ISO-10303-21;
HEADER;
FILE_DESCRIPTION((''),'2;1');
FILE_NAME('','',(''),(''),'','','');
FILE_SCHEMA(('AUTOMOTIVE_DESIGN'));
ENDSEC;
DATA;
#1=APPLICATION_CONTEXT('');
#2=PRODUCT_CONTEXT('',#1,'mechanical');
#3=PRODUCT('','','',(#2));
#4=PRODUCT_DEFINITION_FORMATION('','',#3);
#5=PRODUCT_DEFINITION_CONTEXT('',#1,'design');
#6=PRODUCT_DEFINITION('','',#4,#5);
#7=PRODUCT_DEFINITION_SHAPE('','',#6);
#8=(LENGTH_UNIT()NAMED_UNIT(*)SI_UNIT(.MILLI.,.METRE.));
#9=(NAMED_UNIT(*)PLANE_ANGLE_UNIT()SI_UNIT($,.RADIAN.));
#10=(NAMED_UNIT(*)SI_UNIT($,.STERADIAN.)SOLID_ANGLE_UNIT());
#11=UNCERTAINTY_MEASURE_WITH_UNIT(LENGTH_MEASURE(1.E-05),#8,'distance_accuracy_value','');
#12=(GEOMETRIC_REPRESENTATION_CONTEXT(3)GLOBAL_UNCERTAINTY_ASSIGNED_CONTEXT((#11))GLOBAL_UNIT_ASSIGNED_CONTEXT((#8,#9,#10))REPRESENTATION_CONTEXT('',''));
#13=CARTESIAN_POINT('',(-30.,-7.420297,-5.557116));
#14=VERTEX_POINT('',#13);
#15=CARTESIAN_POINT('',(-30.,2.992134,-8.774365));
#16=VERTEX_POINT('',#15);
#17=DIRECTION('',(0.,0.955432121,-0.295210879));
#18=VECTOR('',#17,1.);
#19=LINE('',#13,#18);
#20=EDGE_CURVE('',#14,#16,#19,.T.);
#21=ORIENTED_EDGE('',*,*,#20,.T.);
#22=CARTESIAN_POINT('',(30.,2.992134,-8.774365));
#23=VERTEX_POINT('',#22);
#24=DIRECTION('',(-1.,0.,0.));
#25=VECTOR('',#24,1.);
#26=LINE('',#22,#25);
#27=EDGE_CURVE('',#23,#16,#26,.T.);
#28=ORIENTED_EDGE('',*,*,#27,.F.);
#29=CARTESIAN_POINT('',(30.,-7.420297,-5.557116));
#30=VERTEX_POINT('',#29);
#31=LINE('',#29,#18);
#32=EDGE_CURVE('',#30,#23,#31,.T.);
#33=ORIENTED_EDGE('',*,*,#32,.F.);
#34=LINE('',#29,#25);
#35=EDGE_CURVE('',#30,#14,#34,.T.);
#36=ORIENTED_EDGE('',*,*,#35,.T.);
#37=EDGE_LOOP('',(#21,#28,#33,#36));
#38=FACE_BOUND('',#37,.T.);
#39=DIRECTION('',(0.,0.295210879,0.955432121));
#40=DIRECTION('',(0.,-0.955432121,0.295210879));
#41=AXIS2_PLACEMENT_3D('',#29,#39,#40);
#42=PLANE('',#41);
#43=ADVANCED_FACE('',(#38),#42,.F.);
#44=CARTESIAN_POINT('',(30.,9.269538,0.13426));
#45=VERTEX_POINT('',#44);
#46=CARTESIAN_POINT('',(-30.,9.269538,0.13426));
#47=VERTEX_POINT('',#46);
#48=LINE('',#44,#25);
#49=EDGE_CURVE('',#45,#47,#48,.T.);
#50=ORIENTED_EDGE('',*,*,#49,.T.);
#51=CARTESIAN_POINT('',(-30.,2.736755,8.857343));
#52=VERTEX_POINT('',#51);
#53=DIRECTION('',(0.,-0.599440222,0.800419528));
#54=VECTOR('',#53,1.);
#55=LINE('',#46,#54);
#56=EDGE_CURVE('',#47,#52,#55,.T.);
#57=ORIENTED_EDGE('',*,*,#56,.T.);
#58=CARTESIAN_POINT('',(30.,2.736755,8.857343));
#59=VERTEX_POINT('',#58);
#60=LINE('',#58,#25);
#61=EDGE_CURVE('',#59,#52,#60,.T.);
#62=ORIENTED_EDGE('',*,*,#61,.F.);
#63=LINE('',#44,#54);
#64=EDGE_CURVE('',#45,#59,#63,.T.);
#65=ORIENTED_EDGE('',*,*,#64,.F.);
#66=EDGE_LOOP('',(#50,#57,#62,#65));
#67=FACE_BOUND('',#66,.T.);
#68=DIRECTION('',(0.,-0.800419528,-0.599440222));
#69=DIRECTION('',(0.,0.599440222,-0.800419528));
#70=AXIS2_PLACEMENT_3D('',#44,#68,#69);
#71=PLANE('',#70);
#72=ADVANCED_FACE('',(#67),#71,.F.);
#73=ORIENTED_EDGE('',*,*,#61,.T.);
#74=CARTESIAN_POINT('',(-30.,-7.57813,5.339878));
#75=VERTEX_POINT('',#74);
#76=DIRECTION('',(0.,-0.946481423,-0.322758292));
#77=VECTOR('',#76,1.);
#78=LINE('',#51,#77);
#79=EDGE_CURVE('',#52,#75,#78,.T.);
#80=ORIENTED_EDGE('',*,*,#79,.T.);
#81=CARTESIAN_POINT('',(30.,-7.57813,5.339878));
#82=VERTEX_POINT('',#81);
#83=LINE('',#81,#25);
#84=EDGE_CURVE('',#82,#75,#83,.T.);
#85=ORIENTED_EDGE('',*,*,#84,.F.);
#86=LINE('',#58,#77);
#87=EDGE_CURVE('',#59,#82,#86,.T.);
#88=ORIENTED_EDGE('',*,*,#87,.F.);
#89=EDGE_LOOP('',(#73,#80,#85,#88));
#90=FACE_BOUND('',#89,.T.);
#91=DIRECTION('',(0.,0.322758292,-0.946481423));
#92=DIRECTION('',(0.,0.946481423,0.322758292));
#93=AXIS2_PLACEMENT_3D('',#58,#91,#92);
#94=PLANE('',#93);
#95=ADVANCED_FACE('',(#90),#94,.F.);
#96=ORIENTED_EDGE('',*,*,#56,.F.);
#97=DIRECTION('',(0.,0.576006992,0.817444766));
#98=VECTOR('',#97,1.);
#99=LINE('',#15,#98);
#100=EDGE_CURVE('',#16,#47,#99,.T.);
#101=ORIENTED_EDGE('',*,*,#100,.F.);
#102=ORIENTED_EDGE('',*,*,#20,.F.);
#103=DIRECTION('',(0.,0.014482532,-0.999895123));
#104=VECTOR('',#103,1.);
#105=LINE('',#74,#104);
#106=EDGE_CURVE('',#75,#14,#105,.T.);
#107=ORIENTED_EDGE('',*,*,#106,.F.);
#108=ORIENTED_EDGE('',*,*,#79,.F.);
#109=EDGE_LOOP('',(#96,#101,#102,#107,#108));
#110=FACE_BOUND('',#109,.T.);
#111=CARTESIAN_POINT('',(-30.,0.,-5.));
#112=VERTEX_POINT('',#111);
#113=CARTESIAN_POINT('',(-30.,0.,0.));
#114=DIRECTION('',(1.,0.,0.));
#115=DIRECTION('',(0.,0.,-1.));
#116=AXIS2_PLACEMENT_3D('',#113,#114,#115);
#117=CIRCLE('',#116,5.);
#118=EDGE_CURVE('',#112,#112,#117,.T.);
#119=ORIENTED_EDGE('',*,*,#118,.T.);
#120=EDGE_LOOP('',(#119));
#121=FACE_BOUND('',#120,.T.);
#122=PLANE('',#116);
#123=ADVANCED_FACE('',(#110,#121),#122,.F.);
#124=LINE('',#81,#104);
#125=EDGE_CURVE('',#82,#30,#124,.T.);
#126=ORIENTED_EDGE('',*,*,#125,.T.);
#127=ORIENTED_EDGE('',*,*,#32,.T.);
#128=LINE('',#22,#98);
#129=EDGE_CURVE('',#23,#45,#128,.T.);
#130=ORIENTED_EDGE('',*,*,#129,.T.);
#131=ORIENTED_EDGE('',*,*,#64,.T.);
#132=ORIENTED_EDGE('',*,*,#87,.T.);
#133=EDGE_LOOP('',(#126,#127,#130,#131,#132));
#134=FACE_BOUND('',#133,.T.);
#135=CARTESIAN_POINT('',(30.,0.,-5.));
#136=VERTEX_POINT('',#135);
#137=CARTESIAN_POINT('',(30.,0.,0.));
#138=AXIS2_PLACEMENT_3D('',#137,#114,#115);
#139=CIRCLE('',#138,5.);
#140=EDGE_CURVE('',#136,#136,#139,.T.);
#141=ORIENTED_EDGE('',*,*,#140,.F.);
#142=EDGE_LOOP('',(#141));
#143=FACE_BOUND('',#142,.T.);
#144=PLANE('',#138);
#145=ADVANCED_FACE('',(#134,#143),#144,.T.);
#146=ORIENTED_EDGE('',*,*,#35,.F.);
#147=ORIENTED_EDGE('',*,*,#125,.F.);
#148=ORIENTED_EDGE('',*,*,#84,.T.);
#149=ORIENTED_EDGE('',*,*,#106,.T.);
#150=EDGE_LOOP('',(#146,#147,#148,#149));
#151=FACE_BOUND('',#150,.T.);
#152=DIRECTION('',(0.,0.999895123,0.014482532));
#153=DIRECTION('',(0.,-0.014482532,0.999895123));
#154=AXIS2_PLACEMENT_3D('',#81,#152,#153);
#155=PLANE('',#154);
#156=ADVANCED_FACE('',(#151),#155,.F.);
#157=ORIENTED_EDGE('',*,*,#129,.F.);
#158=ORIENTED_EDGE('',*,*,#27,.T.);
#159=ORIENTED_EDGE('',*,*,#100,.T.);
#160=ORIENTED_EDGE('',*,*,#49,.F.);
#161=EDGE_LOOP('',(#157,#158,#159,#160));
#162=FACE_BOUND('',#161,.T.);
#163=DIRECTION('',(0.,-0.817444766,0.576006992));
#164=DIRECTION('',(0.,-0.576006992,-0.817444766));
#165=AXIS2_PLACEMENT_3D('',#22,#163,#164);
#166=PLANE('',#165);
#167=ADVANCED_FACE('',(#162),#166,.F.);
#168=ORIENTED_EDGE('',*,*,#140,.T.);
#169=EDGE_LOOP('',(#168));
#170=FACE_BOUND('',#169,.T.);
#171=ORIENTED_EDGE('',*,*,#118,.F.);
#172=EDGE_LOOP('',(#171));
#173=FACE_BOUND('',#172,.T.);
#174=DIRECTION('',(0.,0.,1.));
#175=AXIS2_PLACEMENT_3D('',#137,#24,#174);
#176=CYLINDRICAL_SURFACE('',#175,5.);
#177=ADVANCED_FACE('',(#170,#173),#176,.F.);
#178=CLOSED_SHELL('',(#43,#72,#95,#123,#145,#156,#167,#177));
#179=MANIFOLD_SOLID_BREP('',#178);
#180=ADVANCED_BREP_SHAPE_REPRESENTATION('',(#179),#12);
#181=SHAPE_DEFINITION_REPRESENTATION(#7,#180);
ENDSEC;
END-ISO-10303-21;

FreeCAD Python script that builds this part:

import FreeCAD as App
import Part
import Sketcher
from FreeCAD import Vector


def add_polygon(sketch, points):
    """Adds a closed chain of lines whose ends are joined by coincident constraints."""
    first, n = sketch.GeometryCount, len(points)
    for a, b in zip(points, points[1:] + points[:1]):
        sketch.addGeometry(Part.LineSegment(App.Vector(*a, 0), App.Vector(*b, 0)), False)
    for i in range(n):
        sketch.addConstraint(Sketcher.Constraint("Coincident", first + i, 2, first + (i + 1) % n, 1))

doc = App.newDocument("Part")
params = doc.addObject("Spreadsheet::Sheet", "Params")
for row, (alias, value) in enumerate([
    ("sketch1_diameter", "10 mm"),
    ("pad1_length", "60 mm"),
], start=1):
    params.set(f"A{row}", alias)
    params.set(f"B{row}", "=" + value)
    params.setAlias(f"B{row}", alias)

body = doc.addObject("PartDesign::Body", "Body")

# Sketch on YZ plane
sketch1 = body.newObject("Sketcher::SketchObject", "Sketch")
sketch1.AttachmentSupport = (doc.getObject("YZ_Plane"), [""])
sketch1.MapMode = "FlatFace"
add_polygon(sketch1, [(-7.420297, -5.557116), (2.992134, -8.774365), (9.269538, 0.13426), (2.736755, 8.857343), (-7.57813, 5.339878)])  # lines 0-4
sketch1.addGeometry(Part.Circle(Vector(0, 0, 0), Vector(0, 0, 1), 5), False)  # 5
sketch1.addConstraint([
    Sketcher.Constraint("Coincident", 5, 3, -1, 1),
    Sketcher.Constraint("Equal", 0, 1),
    Sketcher.Constraint("Equal", 1, 2),
    Sketcher.Constraint("Equal", 2, 3),
    Sketcher.Constraint("Equal", 3, 4),
    Sketcher.Constraint("Diameter", 5, 10.0),
    Sketcher.Constraint("DistanceY", -1, 1, 1, 2, 0.13426),
    Sketcher.Constraint("DistanceX", 3, 2, -1, 1, 7.57813),
    Sketcher.Constraint("DistanceY", -1, 1, 3, 2, 5.339878),
    Sketcher.Constraint("DistanceX", 2, 2, 0, 2, 0.255379),
    Sketcher.Constraint("DistanceY", 0, 2, 2, 2, 17.631708),
    Sketcher.Constraint("DistanceX", 4, 2, 0, 2, 10.412431),
])
sketch1.setExpression("Constraints[10]", "Params.sketch1_diameter")
pad1 = body.newObject("PartDesign::Pad", "Pad")
pad1.Profile = sketch1
pad1.setExpression("Length", "Params.pad1_length")
pad1.Midplane = True

doc.recompute()
